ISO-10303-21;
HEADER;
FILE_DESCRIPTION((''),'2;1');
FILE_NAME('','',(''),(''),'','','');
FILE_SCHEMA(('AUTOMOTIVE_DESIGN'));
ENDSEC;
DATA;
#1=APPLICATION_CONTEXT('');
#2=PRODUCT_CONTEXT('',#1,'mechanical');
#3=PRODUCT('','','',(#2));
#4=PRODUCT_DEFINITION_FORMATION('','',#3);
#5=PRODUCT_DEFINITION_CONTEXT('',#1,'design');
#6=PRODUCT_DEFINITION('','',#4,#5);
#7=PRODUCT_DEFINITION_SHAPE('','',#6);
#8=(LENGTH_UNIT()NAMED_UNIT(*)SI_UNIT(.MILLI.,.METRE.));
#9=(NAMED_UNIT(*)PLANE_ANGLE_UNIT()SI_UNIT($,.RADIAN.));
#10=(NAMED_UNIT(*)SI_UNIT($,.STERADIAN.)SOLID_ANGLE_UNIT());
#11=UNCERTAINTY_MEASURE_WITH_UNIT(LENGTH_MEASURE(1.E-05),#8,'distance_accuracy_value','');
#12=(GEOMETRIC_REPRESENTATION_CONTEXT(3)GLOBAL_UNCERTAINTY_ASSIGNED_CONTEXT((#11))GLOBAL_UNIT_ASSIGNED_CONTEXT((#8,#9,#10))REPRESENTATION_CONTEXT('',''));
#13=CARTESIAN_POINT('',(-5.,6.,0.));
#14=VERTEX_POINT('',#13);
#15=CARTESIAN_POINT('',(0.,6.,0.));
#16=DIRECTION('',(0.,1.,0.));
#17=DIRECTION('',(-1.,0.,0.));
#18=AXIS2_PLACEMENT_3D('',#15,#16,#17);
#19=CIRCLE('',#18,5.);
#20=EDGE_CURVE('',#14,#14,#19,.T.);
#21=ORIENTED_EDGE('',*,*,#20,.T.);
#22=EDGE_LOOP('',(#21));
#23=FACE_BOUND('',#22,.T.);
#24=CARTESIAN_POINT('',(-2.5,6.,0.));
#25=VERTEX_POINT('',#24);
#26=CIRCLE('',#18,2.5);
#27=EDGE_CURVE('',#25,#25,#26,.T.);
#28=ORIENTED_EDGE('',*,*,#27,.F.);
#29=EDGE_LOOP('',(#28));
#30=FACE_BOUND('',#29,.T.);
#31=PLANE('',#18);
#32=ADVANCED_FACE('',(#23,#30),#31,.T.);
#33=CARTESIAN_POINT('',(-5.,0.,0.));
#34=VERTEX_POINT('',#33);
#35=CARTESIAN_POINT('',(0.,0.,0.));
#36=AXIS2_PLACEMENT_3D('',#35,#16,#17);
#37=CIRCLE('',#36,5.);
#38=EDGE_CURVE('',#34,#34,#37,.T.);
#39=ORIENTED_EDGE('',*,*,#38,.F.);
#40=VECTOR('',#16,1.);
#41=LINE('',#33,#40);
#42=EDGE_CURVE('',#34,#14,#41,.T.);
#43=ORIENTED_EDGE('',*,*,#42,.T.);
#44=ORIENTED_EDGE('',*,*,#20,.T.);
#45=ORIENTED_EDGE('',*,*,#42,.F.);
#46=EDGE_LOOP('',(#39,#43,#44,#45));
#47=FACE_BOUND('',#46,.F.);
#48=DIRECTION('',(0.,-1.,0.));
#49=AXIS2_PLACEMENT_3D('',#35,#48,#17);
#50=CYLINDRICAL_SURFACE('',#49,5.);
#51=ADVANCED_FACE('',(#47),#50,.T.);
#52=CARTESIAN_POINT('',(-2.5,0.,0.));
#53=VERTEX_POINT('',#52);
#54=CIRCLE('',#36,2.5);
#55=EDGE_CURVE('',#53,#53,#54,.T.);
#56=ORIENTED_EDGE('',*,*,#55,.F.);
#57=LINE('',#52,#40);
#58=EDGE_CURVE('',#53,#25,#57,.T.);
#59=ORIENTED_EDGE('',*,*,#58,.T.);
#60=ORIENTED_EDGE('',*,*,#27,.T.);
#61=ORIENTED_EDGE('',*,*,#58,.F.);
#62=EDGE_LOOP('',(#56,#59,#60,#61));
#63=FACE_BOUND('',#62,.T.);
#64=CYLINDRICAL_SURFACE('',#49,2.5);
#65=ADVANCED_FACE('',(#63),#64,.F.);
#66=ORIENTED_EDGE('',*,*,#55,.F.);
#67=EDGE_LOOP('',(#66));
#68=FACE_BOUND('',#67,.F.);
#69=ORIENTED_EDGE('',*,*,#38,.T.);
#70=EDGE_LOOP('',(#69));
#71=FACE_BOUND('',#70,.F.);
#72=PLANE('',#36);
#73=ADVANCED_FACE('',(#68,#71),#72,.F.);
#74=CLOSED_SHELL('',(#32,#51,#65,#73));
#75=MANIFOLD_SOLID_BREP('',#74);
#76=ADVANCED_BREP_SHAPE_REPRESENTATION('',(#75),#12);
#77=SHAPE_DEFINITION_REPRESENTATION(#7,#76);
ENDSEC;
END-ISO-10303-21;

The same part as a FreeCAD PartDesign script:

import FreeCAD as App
import Part
import Sketcher
Q = App.Units.Quantity

doc = App.newDocument("Part")
body = doc.addObject("PartDesign::Body", "Body")

sketch1 = body.newObject("Sketcher::SketchObject", "Sketch")
sketch1.AttachmentSupport = (doc.getObject("XZ_Plane"), [""])
sketch1.MapMode = "FlatFace"
sketch1.addGeometry([
    Part.Circle(App.Vector(0, 0, 0), App.Vector(0, 0, 1), 5),
    Part.Circle(App.Vector(0, 0, 0), App.Vector(0, 0, 1), 2.5),
], False)
sketch1.addConstraint([
    Sketcher.Constraint("Coincident", 0, 3, -1, 1),
    Sketcher.Constraint("Coincident", 1, 3, -1, 1),
    Sketcher.Constraint("Diameter", 0, Q("10 mm")),
    Sketcher.Constraint("Diameter", 1, Q("5 mm")),
])
pad1 = body.newObject("PartDesign::Pad", "Pad")
pad1.Profile = sketch1
pad1.Length = 6
pad1.Reversed = True

doc.recompute()
